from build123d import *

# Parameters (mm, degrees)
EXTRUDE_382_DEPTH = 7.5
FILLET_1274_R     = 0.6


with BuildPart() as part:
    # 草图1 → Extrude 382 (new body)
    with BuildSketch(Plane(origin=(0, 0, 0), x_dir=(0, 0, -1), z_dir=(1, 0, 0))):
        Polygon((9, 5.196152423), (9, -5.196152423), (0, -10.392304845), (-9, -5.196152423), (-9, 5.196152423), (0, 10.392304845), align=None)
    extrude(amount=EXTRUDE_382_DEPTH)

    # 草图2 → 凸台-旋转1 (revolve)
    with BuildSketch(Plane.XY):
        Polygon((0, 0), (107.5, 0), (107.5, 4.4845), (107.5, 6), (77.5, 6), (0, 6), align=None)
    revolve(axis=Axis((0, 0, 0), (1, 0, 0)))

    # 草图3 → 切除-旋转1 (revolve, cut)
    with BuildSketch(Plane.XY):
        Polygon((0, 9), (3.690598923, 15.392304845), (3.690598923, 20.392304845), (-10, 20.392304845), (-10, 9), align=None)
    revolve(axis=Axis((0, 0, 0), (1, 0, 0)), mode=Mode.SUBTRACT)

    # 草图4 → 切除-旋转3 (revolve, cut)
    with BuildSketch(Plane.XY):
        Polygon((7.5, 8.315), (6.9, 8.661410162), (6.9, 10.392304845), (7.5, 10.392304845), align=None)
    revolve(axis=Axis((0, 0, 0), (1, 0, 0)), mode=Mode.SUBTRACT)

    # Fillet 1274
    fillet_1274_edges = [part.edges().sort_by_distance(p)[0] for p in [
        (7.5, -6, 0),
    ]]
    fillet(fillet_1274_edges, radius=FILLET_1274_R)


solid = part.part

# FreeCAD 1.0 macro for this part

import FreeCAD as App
import Part
import Sketcher
Q = App.Units.Quantity


def edges_at(feature, points):
    """Names of the edges that pass closest to the given points."""
    edges = feature.Shape.Edges
    near = lambda p: min(range(len(edges)), key=lambda i: edges[i].distToShape(Part.Vertex(*p))[0])
    return sorted({f"Edge{near(p) + 1}" for p in points})


def add_polygon(sketch, points):
    """Adds a closed chain of lines whose ends are joined by coincident constraints."""
    first, n = sketch.GeometryCount, len(points)
    for a, b in zip(points, points[1:] + points[:1]):
        sketch.addGeometry(Part.LineSegment(App.Vector(*a, 0), App.Vector(*b, 0)), False)
    for i in range(n):
        sketch.addConstraint(Sketcher.Constraint("Coincident", first + i, 2, first + (i + 1) % n, 1))

doc = App.newDocument("Part")
body = doc.addObject("PartDesign::Body", "Body")

sketch1 = doc.addObject("Sketcher::SketchObject", "Sketch")
body.addObject(sketch1)
sketch1.AttachmentSupport = (doc.YZ_Plane, [""])
sketch1.MapMode = "FlatFace"
add_polygon(sketch1, [(-5.196152, -9), (5.196152, -9), (10.392305, 0), (5.196152, 9), (-5.196152, 9), (-10.392305, 0)])
sketch1.addConstraint([
    Sketcher.Constraint("Horizontal", 0),
    Sketcher.Constraint("Horizontal", 3),
    Sketcher.Constraint("Symmetric", 0, 2, 3, 2, -1, 1),
    Sketcher.Constraint("Symmetric", 1, 2, 4, 2, -1, 1),
    Sketcher.Constraint("PointOnObject", 1, 2, -1),
    Sketcher.Constraint("Parallel", 2, 5),
    Sketcher.Constraint("Vertical", 0, 2, 2, 2),
    Sketcher.Constraint("Angle", 1, Q("60 deg")),
    Sketcher.Constraint("DistanceY", 0, 2, -1, 1, 9.0),
    Sketcher.Constraint("DistanceX", 0, 1, 0, 2, 10.392305),
])
pad1 = doc.addObject("PartDesign::Pad", "Pad")
body.addObject(pad1)
pad1.Profile = sketch1
pad1.Length = 7.5

sketch2 = doc.addObject("Sketcher::SketchObject", "Sketch001")
body.addObject(sketch2)
sketch2.AttachmentSupport = (doc.XY_Plane, [""])
sketch2.MapMode = "FlatFace"
add_polygon(sketch2, [(0, 0), (107.5, 0), (107.5, 6), (0, 6)])
sketch2.addConstraint([
    Sketcher.Constraint("Horizontal", 0),
    Sketcher.Constraint("Vertical", 1),
    Sketcher.Constraint("Horizontal", 2),
    Sketcher.Constraint("Vertical", 3),
    Sketcher.Constraint("Coincident", 3, 2, -1, 1),
    Sketcher.Constraint("DistanceY", 1, 1, 1, 2, 6.0),
    Sketcher.Constraint("DistanceX", 0, 1, 0, 2, 107.5),
])
revolution = doc.addObject("PartDesign::Revolution", "Revolution")
body.addObject(revolution)
revolution.Profile = sketch2
revolution.ReferenceAxis = (sketch2, ["H_Axis"])
revolution.Angle = 360

sketch3 = doc.addObject("Sketcher::SketchObject", "Sketch002")
body.addObject(sketch3)
sketch3.AttachmentSupport = (doc.XY_Plane, [""])
sketch3.MapMode = "FlatFace"
add_polygon(sketch3, [(0, 9), (3.690599, 15.392305), (3.690599, 20.392305), (-10, 20.392305), (-10, 9)])
sketch3.addConstraint([
    Sketcher.Constraint("Vertical", 1),
    Sketcher.Constraint("Horizontal", 2),
    Sketcher.Constraint("Vertical", 3),
    Sketcher.Constraint("Horizontal", 4),
    Sketcher.Constraint("PointOnObject", 4, 2, -2),
    Sketcher.Constraint("DistanceX", 4, 1, 4, 2, 10.0),
    Sketcher.Constraint("DistanceY", 1, 1, 1, 2, 5.0),
    Sketcher.Constraint("Angle", 0, Q("60 deg")),
    Sketcher.Constraint("DistanceY", -1, 1, 3, 2, 9.0),
    Sketcher.Constraint("DistanceX", 2, 2, 2, 1, 13.690599),
])
groove = doc.addObject("PartDesign::Groove", "Groove")
body.addObject(groove)
groove.Profile = sketch3
groove.ReferenceAxis = (sketch3, ["H_Axis"])
groove.Angle = 360

sketch4 = doc.addObject("Sketcher::SketchObject", "Sketch003")
body.addObject(sketch4)
sketch4.AttachmentSupport = (doc.XY_Plane, [""])
sketch4.MapMode = "FlatFace"
add_polygon(sketch4, [(6.9, 8.66141), (7.5, 8.315), (7.5, 10.392305), (6.9, 10.392305)])
sketch4.addConstraint([
    Sketcher.Constraint("Vertical", 1),
    Sketcher.Constraint("Horizontal", 2),
    Sketcher.Constraint("Vertical", 3),
    Sketcher.Constraint("Angle", 0, Q("-30 deg")),
    Sketcher.Constraint("DistanceX", 2, 2, 2, 1, 0.6),
    Sketcher.Constraint("DistanceX", -1, 1, 0, 2, 7.5),
    Sketcher.Constraint("DistanceY", -1, 1, 0, 2, 8.315),
    Sketcher.Constraint("DistanceY", 1, 1, 1, 2, 2.077305),
])
groove2 = doc.addObject("PartDesign::Groove", "Groove001")
body.addObject(groove2)
groove2.Profile = sketch4
groove2.ReferenceAxis = (sketch4, ["H_Axis"])
groove2.Angle = 360
doc.recompute()

fillet = doc.addObject("PartDesign::Fillet", "Fillet")
body.addObject(fillet)
fillet.Base = (groove2, edges_at(groove2, [(7.5, -6, 0)]))
fillet.Radius = 0.6

doc.recompute()
